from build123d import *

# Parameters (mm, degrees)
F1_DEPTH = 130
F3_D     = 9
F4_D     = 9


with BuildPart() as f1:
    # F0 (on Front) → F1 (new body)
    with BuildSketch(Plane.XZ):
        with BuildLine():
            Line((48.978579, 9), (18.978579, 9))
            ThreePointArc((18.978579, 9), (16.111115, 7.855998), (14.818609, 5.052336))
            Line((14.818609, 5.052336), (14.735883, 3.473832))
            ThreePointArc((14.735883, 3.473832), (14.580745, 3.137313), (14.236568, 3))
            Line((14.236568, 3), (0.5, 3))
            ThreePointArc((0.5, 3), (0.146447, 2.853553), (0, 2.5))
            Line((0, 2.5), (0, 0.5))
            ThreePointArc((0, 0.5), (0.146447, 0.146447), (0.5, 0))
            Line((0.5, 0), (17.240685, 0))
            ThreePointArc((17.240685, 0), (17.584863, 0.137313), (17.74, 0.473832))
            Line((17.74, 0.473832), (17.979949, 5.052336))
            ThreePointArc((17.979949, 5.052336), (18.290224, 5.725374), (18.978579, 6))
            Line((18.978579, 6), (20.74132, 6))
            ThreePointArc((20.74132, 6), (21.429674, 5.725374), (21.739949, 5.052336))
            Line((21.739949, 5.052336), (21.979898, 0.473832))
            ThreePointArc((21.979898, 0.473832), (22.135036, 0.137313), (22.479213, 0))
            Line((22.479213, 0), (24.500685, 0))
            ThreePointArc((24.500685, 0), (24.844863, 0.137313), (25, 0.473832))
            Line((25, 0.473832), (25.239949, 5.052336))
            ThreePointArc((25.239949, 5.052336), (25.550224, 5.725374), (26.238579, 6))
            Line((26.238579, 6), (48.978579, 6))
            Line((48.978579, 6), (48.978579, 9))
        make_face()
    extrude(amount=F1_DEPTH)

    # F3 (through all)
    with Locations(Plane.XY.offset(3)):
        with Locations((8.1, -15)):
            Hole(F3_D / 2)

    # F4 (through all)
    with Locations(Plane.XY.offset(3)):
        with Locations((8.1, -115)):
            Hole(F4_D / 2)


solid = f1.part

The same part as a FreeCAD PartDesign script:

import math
import FreeCAD as App
import Part
import Sketcher

V = App.Vector
Q = App.Units.Quantity

doc = App.newDocument("Part")
body = doc.addObject("PartDesign::Body", "Body")

sketch1 = body.newObject("Sketcher::SketchObject", "Sketch")
sketch1.AttachmentSupport = (doc.getObject("XZ_Plane"), [""])
sketch1.MapMode = "FlatFace"
sketch1.addGeometry(Part.LineSegment(V(48.98, 9, 0), V(18.98, 9, 0)), False)
sketch1.addGeometry(Part.ArcOfCircle(Part.Circle(V(18.98, 4.83, 0), V(0, 0, 1), 4.17), math.radians(90), math.radians(177)), False)
sketch1.addGeometry(Part.LineSegment(V(14.82, 5.05, 0), V(14.74, 3.47, 0)), False)
sketch1.addGeometry(Part.ArcOfCircle(Part.Circle(V(14.24, 3.5, 0), V(0, 0, 1), 0.5), math.radians(-90), math.radians(-3)), False)
sketch1.addGeometry(Part.LineSegment(V(14.24, 3, 0), V(0.5, 3, 0)), False)
sketch1.addGeometry(Part.ArcOfCircle(Part.Circle(V(0.5, 2.5, 0), V(0, 0, 1), 0.5), math.radians(90), math.radians(180)), False)
sketch1.addGeometry(Part.LineSegment(V(0, 2.5, 0), V(0, 0.5, 0)), False)
sketch1.addGeometry(Part.ArcOfCircle(Part.Circle(V(0.5, 0.5, 0), V(0, 0, 1), 0.5), math.radians(-180), math.radians(-90)), False)
sketch1.addGeometry(Part.LineSegment(V(0.5, 0, 0), V(17.24, 0, 0)), False)
sketch1.addGeometry(Part.ArcOfCircle(Part.Circle(V(17.24, 0.5, 0), V(0, 0, 1), 0.5), math.radians(-90), math.radians(-3)), False)
sketch1.addGeometry(Part.LineSegment(V(17.74, 0.47, 0), V(17.98, 5.05, 0)), False)
sketch1.addGeometry(Part.ArcOfCircle(Part.Circle(V(18.98, 5, 0), V(0, 0, 1), 1), math.radians(90), math.radians(177)), False)
sketch1.addGeometry(Part.LineSegment(V(18.98, 6, 0), V(20.74, 6, 0)), False)
sketch1.addGeometry(Part.ArcOfCircle(Part.Circle(V(20.74, 5, 0), V(0, 0, 1), 1), math.radians(3), math.radians(90)), False)
sketch1.addGeometry(Part.LineSegment(V(21.74, 5.05, 0), V(21.98, 0.47, 0)), False)
sketch1.addGeometry(Part.ArcOfCircle(Part.Circle(V(22.48, 0.5, 0), V(0, 0, 1), 0.5), math.radians(-177), math.radians(-90)), False)
sketch1.addGeometry(Part.LineSegment(V(22.48, 0, 0), V(24.5, 0, 0)), False)
sketch1.addGeometry(Part.ArcOfCircle(Part.Circle(V(24.5, 0.5, 0), V(0, 0, 1), 0.5), math.radians(-90), math.radians(-3)), False)
sketch1.addGeometry(Part.LineSegment(V(25, 0.47, 0), V(25.24, 5.05, 0)), False)
sketch1.addGeometry(Part.ArcOfCircle(Part.Circle(V(26.24, 5, 0), V(0, 0, 1), 1), math.radians(90), math.radians(177)), False)
sketch1.addGeometry(Part.LineSegment(V(26.24, 6, 0), V(48.98, 6, 0)), False)
sketch1.addGeometry(Part.LineSegment(V(48.98, 6, 0), V(48.98, 9, 0)), False)
sketch1.addConstraint(Sketcher.Constraint("Tangent", 0, 2, 1, 1))
sketch1.addConstraint(Sketcher.Constraint("Tangent", 1, 2, 2, 1))
sketch1.addConstraint(Sketcher.Constraint("Coincident", 2, 2, 3, 2))
sketch1.addConstraint(Sketcher.Constraint("Coincident", 3, 1, 4, 1))
sketch1.addConstraint(Sketcher.Constraint("Coincident", 4, 2, 5, 1))
sketch1.addConstraint(Sketcher.Constraint("Coincident", 5, 2, 6, 1))
sketch1.addConstraint(Sketcher.Constraint("Coincident", 6, 2, 7, 1))
sketch1.addConstraint(Sketcher.Constraint("Coincident", 7, 2, 8, 1))
sketch1.addConstraint(Sketcher.Constraint("Tangent", 8, 2, 9, 1))
sketch1.addConstraint(Sketcher.Constraint("Tangent", 9, 2, 10, 1))
sketch1.addConstraint(Sketcher.Constraint("Tangent", 10, 2, 11, 2))
sketch1.addConstraint(Sketcher.Constraint("Tangent", 11, 1, 12, 1))
sketch1.addConstraint(Sketcher.Constraint("Tangent", 12, 2, 13, 2))
sketch1.addConstraint(Sketcher.Constraint("Tangent", 13, 1, 14, 1))
sketch1.addConstraint(Sketcher.Constraint("Coincident", 14, 2, 15, 1))
sketch1.addConstraint(Sketcher.Constraint("Coincident", 15, 2, 16, 1))
sketch1.addConstraint(Sketcher.Constraint("Tangent", 16, 2, 17, 1))
sketch1.addConstraint(Sketcher.Constraint("Tangent", 17, 2, 18, 1))
sketch1.addConstraint(Sketcher.Constraint("Tangent", 18, 2, 19, 2))
sketch1.addConstraint(Sketcher.Constraint("Tangent", 19, 1, 20, 1))
sketch1.addConstraint(Sketcher.Constraint("Coincident", 20, 2, 21, 1))
sketch1.addConstraint(Sketcher.Constraint("Coincident", 21, 2, 0, 1))
sketch1.addConstraint(Sketcher.Constraint("Horizontal", 0))
sketch1.addConstraint(Sketcher.Constraint("Horizontal", 4))
sketch1.addConstraint(Sketcher.Constraint("Vertical", 6))
sketch1.addConstraint(Sketcher.Constraint("Horizontal", 8))
sketch1.addConstraint(Sketcher.Constraint("Horizontal", 12))
sketch1.addConstraint(Sketcher.Constraint("Horizontal", 16))
sketch1.addConstraint(Sketcher.Constraint("Horizontal", 20))
sketch1.addConstraint(Sketcher.Constraint("Vertical", 21))
sketch1.addConstraint(Sketcher.Constraint("Equal", 3, 5))
sketch1.addConstraint(Sketcher.Constraint("Equal", 5, 7))
sketch1.addConstraint(Sketcher.Constraint("Equal", 7, 9))
sketch1.addConstraint(Sketcher.Constraint("Equal", 11, 13))
sketch1.addConstraint(Sketcher.Constraint("Equal", 9, 15))
sketch1.addConstraint(Sketcher.Constraint("Equal", 15, 17))
sketch1.addConstraint(Sketcher.Constraint("Equal", 13, 19))
sketch1.addConstraint(Sketcher.Constraint("PointOnObject", 5, 2, -2))
sketch1.addConstraint(Sketcher.Constraint("PointOnObject", 7, 2, -1))
sketch1.addConstraint(Sketcher.Constraint("PointOnObject", 15, 2, -1))
sketch1.addConstraint(Sketcher.Constraint("Parallel", 2, 10))
sketch1.addConstraint(Sketcher.Constraint("Parallel", 10, 18))
sketch1.addConstraint(Sketcher.Constraint("Horizontal", 13, 3, 19, 3))
sketch1.addConstraint(Sketcher.Constraint("Horizontal", 17, 3, 6, 2))
sketch1.addConstraint(Sketcher.Constraint("Horizontal", 1, 2, 10, 2))
sketch1.addConstraint(Sketcher.Constraint("Horizontal", 10, 2, 13, 1))
sketch1.addConstraint(Sketcher.Constraint("Horizontal", 9, 2, 14, 2))
sketch1.addConstraint(Sketcher.Constraint("Vertical", 1, 3, 11, 3))
sketch1.addConstraint(Sketcher.Constraint("Vertical", 7, 3, 4, 2))
sketch1.addConstraint(Sketcher.Constraint("Vertical", 4, 2, 7, 2))
sketch1.addConstraint(Sketcher.Constraint("Radius", 11, Q("1.000001 mm")))
sketch1.addConstraint(Sketcher.Constraint("Radius", 3, Q("0.500001 mm")))
sketch1.addConstraint(Sketcher.Constraint("DistanceX", 0, 2, 0, 1, Q("30 mm")))
sketch1.addConstraint(Sketcher.Constraint("DistanceY", 6, 2, 6, 1, Q("2 mm")))
sketch1.addConstraint(Sketcher.Constraint("DistanceY", 21, 1, 21, 2, Q("3 mm")))
sketch1.addConstraint(Sketcher.Constraint("Angle", 2, Q("-93.000004 deg")))
sketch1.addConstraint(Sketcher.Constraint("DistanceY", -1, 1, 11, 3, Q("4.999999 mm")))
sketch1.addConstraint(Sketcher.Constraint("DistanceY", -1, 1, 3, 1, Q("3 mm")))
sketch1.addConstraint(Sketcher.Constraint("DistanceX", -1, 1, 17, 2, Q("25 mm")))
sketch1.addConstraint(Sketcher.Constraint("DistanceY", 9, 2, 2, 2, Q("3 mm")))
sketch1.addConstraint(Sketcher.Constraint("DistanceX", 20, 1, 20, 2, Q("22.74 mm")))
sketch1.addConstraint(Sketcher.Constraint("DistanceX", 13, 1, 18, 2, Q("3.5 mm")))
sketch1.addConstraint(Sketcher.Constraint("DistanceX", 16, 1, 16, 2, Q("2.021472 mm")))
sketch1.addConstraint(Sketcher.Constraint("DistanceX", 4, 2, 4, 1, Q("13.736568 mm")))
pad1 = body.newObject("PartDesign::Pad", "Pad")
pad1.Profile = sketch1
pad1.Length = 130

sketch2 = body.newObject("Sketcher::SketchObject", "Sketch001")
sketch2.AttachmentSupport = (doc.getObject("XY_Plane"), [""])
sketch2.MapMode = "FlatFace"
sketch2.AttachmentOffset = App.Placement(V(0, 0, 3), App.Rotation())
sketch2.addGeometry(Part.Circle(V(8.1, -15, 0), V(0, 0, 1), 4.5), False)
sketch2.addConstraint(Sketcher.Constraint("Diameter", 0, Q("9 mm")))
sketch2.addConstraint(Sketcher.Constraint("DistanceY", 0, 3, -1, 1, Q("15 mm")))
sketch2.addConstraint(Sketcher.Constraint("DistanceX", -1, 1, 0, 3, Q("8.1 mm")))
doc.recompute()
hole = body.newObject("PartDesign::Hole", "Hole")
hole.Profile = sketch2
hole.ThreadType = "None"
hole.Diameter = 9
hole.DepthType = "ThroughAll"

sketch3 = body.newObject("Sketcher::SketchObject", "Sketch002")
sketch3.AttachmentSupport = (doc.getObject("XY_Plane"), [""])
sketch3.MapMode = "FlatFace"
sketch3.AttachmentOffset = App.Placement(V(0, 0, 3), App.Rotation())
sketch3.addGeometry(Part.Circle(V(8.1, -115, 0), V(0, 0, 1), 4.5), False)
sketch3.addConstraint(Sketcher.Constraint("Diameter", 0, Q("9 mm")))
sketch3.addConstraint(Sketcher.Constraint("DistanceY", 0, 3, -1, 1, Q("115 mm")))
sketch3.addConstraint(Sketcher.Constraint("DistanceX", -1, 1, 0, 3, Q("8.1 mm")))
doc.recompute()
hole2 = body.newObject("PartDesign::Hole", "Hole001")
hole2.Profile = sketch3
hole2.ThreadType = "None"
hole2.Diameter = 9
hole2.DepthType = "ThroughAll"

doc.recompute()
